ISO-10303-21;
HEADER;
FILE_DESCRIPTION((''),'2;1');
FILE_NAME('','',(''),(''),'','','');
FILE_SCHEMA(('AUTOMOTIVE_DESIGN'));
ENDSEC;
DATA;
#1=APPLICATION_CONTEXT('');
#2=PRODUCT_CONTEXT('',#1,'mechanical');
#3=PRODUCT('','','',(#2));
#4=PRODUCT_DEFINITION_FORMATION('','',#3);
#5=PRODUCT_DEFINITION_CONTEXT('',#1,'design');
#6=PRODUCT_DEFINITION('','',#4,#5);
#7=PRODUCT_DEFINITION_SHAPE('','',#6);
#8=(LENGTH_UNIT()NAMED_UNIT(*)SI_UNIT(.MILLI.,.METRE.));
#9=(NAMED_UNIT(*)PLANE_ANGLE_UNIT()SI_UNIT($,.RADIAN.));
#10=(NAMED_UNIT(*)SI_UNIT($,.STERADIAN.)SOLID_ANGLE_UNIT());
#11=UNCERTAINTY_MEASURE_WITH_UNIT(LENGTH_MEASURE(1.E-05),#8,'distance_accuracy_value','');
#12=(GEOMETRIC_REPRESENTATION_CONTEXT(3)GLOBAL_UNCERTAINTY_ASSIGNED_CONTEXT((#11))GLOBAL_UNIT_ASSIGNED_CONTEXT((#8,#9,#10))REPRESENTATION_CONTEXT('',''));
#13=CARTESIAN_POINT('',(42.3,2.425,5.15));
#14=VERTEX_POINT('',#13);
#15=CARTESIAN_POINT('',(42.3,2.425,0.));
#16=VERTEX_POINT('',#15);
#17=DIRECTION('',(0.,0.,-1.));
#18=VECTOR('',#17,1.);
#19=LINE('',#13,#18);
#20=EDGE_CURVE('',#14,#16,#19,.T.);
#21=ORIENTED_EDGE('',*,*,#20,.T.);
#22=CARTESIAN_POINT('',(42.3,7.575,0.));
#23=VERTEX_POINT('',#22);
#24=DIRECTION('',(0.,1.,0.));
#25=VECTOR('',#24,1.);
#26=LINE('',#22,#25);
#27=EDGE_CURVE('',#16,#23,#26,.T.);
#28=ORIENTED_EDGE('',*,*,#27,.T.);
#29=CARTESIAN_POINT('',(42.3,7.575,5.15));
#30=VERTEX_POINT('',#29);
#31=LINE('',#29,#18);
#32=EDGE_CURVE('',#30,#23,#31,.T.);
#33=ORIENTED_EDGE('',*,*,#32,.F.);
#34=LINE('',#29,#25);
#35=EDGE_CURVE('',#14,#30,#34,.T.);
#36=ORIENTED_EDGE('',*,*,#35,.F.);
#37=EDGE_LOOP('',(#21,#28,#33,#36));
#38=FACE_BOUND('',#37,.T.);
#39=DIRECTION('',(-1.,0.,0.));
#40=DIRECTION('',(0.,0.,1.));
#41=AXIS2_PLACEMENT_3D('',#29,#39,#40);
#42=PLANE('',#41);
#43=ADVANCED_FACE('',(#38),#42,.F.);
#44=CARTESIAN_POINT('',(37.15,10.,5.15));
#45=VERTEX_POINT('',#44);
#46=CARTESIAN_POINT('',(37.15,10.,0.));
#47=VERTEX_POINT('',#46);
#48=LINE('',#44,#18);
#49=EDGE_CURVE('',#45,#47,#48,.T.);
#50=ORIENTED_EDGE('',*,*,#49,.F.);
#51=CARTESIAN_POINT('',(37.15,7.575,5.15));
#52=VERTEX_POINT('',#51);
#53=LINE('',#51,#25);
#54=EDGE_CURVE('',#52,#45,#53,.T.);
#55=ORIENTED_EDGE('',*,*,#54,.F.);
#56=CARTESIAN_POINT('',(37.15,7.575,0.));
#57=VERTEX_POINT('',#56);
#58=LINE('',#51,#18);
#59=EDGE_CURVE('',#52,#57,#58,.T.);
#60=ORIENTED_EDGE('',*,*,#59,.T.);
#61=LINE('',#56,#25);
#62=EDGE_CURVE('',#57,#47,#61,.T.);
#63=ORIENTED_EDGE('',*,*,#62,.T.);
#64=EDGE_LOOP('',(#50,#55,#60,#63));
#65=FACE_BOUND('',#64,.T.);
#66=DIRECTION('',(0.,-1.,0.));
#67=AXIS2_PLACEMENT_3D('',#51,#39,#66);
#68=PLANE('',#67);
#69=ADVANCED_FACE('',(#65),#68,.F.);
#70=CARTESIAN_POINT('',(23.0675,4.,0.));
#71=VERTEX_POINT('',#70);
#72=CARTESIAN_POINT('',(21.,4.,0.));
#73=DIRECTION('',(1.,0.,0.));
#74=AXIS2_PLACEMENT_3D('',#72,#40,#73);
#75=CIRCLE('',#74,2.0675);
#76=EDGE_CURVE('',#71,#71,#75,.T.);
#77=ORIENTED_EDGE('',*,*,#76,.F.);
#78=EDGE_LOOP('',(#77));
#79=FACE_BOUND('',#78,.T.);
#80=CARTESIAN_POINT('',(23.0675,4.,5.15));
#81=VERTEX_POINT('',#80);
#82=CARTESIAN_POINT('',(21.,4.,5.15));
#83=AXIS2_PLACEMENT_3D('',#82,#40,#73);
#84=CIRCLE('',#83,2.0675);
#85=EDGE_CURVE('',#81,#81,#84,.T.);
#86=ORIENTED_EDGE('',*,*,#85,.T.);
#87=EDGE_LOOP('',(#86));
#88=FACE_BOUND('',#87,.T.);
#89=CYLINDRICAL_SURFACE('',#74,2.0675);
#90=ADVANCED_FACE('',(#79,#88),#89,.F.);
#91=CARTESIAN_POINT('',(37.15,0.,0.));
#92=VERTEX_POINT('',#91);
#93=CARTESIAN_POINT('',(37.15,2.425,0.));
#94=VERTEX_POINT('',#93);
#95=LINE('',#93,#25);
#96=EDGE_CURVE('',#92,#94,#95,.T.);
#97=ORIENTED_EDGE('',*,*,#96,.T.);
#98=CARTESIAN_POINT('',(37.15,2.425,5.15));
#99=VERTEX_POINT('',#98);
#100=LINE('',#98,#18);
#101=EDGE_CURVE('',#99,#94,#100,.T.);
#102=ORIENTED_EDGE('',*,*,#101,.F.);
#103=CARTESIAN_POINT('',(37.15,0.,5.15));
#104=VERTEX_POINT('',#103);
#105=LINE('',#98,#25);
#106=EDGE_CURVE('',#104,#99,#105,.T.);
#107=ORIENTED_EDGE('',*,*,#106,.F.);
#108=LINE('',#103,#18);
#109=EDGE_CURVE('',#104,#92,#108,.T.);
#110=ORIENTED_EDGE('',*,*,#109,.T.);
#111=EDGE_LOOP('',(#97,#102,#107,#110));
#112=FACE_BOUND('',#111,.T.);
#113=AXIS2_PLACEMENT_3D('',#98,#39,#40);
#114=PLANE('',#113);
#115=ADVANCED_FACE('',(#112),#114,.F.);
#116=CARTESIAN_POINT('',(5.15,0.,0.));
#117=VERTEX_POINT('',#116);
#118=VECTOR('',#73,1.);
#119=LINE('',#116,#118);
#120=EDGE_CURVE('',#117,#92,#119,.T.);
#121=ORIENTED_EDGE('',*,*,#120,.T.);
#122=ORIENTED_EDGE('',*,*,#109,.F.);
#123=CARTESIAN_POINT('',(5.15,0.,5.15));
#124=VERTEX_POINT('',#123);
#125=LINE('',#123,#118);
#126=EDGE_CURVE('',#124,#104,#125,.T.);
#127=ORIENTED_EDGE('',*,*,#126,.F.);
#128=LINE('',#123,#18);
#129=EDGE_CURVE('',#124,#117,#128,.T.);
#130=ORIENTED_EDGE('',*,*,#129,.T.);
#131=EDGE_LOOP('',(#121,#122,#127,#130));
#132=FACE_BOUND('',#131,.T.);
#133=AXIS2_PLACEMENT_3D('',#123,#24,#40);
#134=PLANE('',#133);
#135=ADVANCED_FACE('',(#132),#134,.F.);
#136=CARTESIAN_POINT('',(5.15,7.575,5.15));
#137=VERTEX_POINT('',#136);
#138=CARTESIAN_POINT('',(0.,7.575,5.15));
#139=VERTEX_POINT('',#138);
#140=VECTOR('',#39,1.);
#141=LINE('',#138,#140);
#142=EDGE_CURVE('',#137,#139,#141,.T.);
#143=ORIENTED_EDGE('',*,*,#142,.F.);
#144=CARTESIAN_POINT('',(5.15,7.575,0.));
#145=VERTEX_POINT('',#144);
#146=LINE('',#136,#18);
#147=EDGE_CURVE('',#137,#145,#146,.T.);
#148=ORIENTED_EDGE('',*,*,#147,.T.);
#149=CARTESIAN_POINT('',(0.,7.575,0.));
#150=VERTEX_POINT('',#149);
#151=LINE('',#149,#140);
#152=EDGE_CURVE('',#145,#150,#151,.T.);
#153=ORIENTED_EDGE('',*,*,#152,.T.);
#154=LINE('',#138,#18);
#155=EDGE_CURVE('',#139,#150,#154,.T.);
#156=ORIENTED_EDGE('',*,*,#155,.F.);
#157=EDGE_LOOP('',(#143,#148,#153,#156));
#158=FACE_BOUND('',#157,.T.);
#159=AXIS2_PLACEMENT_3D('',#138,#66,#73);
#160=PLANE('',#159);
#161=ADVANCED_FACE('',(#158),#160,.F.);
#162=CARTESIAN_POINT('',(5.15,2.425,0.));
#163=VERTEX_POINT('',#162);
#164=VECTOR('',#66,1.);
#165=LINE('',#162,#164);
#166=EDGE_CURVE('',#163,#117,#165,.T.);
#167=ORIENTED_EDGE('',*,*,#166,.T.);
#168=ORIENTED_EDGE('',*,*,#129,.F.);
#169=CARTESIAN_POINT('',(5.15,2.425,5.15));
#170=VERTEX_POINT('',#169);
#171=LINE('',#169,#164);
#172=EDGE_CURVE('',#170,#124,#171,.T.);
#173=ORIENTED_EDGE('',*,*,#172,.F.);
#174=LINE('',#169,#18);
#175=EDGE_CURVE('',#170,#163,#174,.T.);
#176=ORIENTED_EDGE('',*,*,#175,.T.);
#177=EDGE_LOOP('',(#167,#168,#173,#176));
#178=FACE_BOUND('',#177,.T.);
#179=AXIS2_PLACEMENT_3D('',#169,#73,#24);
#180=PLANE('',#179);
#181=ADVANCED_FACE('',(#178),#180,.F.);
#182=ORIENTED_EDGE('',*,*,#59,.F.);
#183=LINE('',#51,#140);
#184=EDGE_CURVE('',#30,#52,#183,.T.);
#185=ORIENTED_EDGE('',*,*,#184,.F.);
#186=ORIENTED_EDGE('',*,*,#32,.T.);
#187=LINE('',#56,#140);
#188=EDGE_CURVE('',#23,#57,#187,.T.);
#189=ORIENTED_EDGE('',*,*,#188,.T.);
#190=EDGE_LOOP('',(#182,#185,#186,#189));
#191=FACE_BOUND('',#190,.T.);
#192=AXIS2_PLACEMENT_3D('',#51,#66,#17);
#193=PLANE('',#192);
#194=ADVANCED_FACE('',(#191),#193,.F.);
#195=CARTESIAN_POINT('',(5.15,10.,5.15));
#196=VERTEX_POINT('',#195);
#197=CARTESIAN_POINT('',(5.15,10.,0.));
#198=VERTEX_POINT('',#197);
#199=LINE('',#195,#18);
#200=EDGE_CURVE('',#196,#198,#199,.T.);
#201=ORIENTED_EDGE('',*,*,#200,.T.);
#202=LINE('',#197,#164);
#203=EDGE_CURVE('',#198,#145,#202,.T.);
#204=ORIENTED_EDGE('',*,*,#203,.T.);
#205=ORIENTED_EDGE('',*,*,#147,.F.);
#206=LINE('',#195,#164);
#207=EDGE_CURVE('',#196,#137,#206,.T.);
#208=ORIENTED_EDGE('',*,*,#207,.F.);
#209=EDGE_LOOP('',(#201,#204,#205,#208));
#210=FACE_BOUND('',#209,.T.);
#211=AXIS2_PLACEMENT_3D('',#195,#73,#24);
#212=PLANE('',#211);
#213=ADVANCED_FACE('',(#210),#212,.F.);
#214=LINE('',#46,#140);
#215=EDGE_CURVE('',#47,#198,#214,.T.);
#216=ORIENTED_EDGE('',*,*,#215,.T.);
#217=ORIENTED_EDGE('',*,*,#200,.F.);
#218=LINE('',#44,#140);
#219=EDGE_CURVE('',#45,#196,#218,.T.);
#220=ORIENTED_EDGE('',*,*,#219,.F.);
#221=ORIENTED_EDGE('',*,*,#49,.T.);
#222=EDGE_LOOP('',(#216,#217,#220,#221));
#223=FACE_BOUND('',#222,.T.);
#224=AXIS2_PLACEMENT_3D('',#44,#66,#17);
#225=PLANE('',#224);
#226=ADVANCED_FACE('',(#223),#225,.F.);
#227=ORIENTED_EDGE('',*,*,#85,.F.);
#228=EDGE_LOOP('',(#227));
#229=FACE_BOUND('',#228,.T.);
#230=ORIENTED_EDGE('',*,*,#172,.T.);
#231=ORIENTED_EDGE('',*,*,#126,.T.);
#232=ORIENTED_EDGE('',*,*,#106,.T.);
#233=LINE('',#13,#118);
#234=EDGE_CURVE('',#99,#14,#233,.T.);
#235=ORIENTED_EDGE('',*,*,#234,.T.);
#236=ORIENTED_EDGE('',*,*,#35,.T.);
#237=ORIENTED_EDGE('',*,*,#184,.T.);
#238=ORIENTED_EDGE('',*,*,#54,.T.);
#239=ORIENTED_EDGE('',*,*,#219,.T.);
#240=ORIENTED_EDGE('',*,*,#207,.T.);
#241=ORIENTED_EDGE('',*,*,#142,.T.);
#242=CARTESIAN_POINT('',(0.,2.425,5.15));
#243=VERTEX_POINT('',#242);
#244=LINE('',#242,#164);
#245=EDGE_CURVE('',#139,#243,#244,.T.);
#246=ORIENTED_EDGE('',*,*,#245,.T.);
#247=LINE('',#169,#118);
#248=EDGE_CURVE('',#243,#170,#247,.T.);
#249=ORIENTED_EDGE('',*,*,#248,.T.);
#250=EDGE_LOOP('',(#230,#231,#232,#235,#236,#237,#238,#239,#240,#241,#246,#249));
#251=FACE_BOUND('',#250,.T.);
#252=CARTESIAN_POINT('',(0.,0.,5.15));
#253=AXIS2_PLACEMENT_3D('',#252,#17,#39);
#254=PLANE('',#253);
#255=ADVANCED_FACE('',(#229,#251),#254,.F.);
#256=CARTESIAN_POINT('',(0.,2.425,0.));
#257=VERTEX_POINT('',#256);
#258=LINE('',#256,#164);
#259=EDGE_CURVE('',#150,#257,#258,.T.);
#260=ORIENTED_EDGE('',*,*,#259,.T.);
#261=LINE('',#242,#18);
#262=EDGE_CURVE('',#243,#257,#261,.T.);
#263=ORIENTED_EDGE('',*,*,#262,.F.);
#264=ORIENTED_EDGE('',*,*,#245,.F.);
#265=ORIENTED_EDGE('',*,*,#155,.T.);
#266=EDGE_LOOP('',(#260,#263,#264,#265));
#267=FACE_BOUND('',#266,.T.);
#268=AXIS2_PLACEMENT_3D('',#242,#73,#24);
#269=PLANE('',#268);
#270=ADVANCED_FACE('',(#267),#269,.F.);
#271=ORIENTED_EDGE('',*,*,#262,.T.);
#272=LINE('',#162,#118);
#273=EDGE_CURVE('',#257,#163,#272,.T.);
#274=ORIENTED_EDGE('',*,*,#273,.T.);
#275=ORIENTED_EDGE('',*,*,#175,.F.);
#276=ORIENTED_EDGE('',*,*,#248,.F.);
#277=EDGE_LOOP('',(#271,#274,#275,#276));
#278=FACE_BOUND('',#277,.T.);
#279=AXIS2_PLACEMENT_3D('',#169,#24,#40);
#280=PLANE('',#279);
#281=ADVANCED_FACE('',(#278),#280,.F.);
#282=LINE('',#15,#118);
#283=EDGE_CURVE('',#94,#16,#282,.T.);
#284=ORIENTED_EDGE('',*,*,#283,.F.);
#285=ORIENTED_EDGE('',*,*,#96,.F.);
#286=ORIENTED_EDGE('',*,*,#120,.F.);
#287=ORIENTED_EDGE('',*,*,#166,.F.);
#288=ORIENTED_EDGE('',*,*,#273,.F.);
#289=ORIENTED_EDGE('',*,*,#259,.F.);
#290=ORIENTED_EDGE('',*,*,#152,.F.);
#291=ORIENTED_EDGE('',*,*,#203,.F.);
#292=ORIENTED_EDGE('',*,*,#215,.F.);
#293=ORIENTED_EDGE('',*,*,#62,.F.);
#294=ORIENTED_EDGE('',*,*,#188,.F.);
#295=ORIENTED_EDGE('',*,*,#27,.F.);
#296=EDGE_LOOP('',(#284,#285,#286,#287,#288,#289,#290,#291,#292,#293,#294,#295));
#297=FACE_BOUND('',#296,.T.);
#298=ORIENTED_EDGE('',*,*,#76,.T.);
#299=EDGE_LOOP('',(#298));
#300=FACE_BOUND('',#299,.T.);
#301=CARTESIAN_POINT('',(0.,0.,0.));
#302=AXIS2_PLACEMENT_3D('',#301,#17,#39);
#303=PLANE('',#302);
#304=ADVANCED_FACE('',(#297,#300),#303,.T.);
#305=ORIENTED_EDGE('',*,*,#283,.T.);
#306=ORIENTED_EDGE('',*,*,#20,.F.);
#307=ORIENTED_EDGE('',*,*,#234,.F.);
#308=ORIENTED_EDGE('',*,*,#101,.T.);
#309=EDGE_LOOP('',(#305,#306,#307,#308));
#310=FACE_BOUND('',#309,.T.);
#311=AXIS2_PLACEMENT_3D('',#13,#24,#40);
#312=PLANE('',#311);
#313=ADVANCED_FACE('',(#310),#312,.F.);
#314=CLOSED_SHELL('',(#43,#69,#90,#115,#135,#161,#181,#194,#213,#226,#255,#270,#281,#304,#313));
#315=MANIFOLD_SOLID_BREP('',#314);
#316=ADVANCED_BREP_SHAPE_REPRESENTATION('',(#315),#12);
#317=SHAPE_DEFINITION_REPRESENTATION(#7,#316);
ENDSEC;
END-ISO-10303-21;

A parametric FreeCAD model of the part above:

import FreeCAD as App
import Part
import Sketcher

V = App.Vector
Q = App.Units.Quantity


def add_polygon(sketch, points):
    """Adds a closed chain of lines whose ends are joined by coincident constraints."""
    first, n = sketch.GeometryCount, len(points)
    for a, b in zip(points, points[1:] + points[:1]):
        sketch.addGeometry(Part.LineSegment(App.Vector(*a, 0), App.Vector(*b, 0)), False)
    for i in range(n):
        sketch.addConstraint(Sketcher.Constraint("Coincident", first + i, 2, first + (i + 1) % n, 1))

doc = App.newDocument("Part")
body = doc.addObject("PartDesign::Body", "Body")

# Sketch on XY plane
sketch1 = doc.addObject("Sketcher::SketchObject", "Sketch")
body.addObject(sketch1)
sketch1.AttachmentSupport = (doc.XY_Plane, [""])
sketch1.MapMode = "FlatFace"
add_polygon(sketch1, [(0, 7.6), (0, 2.4), (5.2, 2.4), (5.2, 0), (37.1, 0), (37.1, 2.4), (42.3, 2.4), (42.3, 7.6), (37.1, 7.6), (37.1, 10), (5.2, 10), (5.2, 7.6)])  # lines 0-11
sketch1.addConstraint(Sketcher.Constraint("Vertical", 0))
sketch1.addConstraint(Sketcher.Constraint("Horizontal", 1))
sketch1.addConstraint(Sketcher.Constraint("Vertical", 2))
sketch1.addConstraint(Sketcher.Constraint("Horizontal", 3))
sketch1.addConstraint(Sketcher.Constraint("Vertical", 4))
sketch1.addConstraint(Sketcher.Constraint("Horizontal", 5))
sketch1.addConstraint(Sketcher.Constraint("Vertical", 6))
sketch1.addConstraint(Sketcher.Constraint("Horizontal", 7))
sketch1.addConstraint(Sketcher.Constraint("Vertical", 8))
sketch1.addConstraint(Sketcher.Constraint("Horizontal", 9))
sketch1.addConstraint(Sketcher.Constraint("Vertical", 10))
sketch1.addConstraint(Sketcher.Constraint("Horizontal", 11))
sketch1.addConstraint(Sketcher.Constraint("PointOnObject", 0, 2, -2))
sketch1.addConstraint(Sketcher.Constraint("PointOnObject", 2, 2, -1))
sketch1.addConstraint(Sketcher.Constraint("Horizontal", 1, 2, 4, 2))
sketch1.addConstraint(Sketcher.Constraint("Horizontal", 7, 2, 10, 2))
sketch1.addConstraint(Sketcher.Constraint("Vertical", 4, 2, 7, 2))
sketch1.addConstraint(Sketcher.Constraint("Vertical", 2, 2, 9, 2))
sketch1.addConstraint(Sketcher.Constraint("Equal", 1, 5))
sketch1.addConstraint(Sketcher.Constraint("Equal", 11, 0))
sketch1.addConstraint(Sketcher.Constraint("Equal", 4, 8))
sketch1.addConstraint(Sketcher.Constraint("DistanceX", 3, 1, 3, 2, Q("32 mm")))
sketch1.addConstraint(Sketcher.Constraint("DistanceY", -1, 1, 8, 2, Q("10 mm")))
sketch1.addConstraint(Sketcher.Constraint("DistanceX", 1, 1, 1, 2, Q("5.15 mm")))
pad1 = doc.addObject("PartDesign::Pad", "Pad")
body.addObject(pad1)
pad1.Profile = sketch1
pad1.Length = 5.15

# Sketch on XY plane
sketch2 = doc.addObject("Sketcher::SketchObject", "Sketch001")
body.addObject(sketch2)
sketch2.AttachmentSupport = (doc.XY_Plane, [""])
sketch2.MapMode = "FlatFace"
sketch2.AttachmentOffset = App.Placement(V(0, 0, 5.15), App.Rotation())
sketch2.addGeometry(Part.Circle(V(21, 4, 0), V(0, 0, 1), 2.1), False)
sketch2.addConstraint(Sketcher.Constraint("Diameter", 0, Q("4.135 mm")))
sketch2.addConstraint(Sketcher.Constraint("DistanceX", -1, 1, 0, 3, Q("21 mm")))
sketch2.addConstraint(Sketcher.Constraint("DistanceY", -1, 1, 0, 3, Q("4 mm")))
pocket1 = doc.addObject("PartDesign::Pocket", "Pocket")
body.addObject(pocket1)
pocket1.Profile = sketch2
pocket1.Type = "ThroughAll"

doc.recompute()
